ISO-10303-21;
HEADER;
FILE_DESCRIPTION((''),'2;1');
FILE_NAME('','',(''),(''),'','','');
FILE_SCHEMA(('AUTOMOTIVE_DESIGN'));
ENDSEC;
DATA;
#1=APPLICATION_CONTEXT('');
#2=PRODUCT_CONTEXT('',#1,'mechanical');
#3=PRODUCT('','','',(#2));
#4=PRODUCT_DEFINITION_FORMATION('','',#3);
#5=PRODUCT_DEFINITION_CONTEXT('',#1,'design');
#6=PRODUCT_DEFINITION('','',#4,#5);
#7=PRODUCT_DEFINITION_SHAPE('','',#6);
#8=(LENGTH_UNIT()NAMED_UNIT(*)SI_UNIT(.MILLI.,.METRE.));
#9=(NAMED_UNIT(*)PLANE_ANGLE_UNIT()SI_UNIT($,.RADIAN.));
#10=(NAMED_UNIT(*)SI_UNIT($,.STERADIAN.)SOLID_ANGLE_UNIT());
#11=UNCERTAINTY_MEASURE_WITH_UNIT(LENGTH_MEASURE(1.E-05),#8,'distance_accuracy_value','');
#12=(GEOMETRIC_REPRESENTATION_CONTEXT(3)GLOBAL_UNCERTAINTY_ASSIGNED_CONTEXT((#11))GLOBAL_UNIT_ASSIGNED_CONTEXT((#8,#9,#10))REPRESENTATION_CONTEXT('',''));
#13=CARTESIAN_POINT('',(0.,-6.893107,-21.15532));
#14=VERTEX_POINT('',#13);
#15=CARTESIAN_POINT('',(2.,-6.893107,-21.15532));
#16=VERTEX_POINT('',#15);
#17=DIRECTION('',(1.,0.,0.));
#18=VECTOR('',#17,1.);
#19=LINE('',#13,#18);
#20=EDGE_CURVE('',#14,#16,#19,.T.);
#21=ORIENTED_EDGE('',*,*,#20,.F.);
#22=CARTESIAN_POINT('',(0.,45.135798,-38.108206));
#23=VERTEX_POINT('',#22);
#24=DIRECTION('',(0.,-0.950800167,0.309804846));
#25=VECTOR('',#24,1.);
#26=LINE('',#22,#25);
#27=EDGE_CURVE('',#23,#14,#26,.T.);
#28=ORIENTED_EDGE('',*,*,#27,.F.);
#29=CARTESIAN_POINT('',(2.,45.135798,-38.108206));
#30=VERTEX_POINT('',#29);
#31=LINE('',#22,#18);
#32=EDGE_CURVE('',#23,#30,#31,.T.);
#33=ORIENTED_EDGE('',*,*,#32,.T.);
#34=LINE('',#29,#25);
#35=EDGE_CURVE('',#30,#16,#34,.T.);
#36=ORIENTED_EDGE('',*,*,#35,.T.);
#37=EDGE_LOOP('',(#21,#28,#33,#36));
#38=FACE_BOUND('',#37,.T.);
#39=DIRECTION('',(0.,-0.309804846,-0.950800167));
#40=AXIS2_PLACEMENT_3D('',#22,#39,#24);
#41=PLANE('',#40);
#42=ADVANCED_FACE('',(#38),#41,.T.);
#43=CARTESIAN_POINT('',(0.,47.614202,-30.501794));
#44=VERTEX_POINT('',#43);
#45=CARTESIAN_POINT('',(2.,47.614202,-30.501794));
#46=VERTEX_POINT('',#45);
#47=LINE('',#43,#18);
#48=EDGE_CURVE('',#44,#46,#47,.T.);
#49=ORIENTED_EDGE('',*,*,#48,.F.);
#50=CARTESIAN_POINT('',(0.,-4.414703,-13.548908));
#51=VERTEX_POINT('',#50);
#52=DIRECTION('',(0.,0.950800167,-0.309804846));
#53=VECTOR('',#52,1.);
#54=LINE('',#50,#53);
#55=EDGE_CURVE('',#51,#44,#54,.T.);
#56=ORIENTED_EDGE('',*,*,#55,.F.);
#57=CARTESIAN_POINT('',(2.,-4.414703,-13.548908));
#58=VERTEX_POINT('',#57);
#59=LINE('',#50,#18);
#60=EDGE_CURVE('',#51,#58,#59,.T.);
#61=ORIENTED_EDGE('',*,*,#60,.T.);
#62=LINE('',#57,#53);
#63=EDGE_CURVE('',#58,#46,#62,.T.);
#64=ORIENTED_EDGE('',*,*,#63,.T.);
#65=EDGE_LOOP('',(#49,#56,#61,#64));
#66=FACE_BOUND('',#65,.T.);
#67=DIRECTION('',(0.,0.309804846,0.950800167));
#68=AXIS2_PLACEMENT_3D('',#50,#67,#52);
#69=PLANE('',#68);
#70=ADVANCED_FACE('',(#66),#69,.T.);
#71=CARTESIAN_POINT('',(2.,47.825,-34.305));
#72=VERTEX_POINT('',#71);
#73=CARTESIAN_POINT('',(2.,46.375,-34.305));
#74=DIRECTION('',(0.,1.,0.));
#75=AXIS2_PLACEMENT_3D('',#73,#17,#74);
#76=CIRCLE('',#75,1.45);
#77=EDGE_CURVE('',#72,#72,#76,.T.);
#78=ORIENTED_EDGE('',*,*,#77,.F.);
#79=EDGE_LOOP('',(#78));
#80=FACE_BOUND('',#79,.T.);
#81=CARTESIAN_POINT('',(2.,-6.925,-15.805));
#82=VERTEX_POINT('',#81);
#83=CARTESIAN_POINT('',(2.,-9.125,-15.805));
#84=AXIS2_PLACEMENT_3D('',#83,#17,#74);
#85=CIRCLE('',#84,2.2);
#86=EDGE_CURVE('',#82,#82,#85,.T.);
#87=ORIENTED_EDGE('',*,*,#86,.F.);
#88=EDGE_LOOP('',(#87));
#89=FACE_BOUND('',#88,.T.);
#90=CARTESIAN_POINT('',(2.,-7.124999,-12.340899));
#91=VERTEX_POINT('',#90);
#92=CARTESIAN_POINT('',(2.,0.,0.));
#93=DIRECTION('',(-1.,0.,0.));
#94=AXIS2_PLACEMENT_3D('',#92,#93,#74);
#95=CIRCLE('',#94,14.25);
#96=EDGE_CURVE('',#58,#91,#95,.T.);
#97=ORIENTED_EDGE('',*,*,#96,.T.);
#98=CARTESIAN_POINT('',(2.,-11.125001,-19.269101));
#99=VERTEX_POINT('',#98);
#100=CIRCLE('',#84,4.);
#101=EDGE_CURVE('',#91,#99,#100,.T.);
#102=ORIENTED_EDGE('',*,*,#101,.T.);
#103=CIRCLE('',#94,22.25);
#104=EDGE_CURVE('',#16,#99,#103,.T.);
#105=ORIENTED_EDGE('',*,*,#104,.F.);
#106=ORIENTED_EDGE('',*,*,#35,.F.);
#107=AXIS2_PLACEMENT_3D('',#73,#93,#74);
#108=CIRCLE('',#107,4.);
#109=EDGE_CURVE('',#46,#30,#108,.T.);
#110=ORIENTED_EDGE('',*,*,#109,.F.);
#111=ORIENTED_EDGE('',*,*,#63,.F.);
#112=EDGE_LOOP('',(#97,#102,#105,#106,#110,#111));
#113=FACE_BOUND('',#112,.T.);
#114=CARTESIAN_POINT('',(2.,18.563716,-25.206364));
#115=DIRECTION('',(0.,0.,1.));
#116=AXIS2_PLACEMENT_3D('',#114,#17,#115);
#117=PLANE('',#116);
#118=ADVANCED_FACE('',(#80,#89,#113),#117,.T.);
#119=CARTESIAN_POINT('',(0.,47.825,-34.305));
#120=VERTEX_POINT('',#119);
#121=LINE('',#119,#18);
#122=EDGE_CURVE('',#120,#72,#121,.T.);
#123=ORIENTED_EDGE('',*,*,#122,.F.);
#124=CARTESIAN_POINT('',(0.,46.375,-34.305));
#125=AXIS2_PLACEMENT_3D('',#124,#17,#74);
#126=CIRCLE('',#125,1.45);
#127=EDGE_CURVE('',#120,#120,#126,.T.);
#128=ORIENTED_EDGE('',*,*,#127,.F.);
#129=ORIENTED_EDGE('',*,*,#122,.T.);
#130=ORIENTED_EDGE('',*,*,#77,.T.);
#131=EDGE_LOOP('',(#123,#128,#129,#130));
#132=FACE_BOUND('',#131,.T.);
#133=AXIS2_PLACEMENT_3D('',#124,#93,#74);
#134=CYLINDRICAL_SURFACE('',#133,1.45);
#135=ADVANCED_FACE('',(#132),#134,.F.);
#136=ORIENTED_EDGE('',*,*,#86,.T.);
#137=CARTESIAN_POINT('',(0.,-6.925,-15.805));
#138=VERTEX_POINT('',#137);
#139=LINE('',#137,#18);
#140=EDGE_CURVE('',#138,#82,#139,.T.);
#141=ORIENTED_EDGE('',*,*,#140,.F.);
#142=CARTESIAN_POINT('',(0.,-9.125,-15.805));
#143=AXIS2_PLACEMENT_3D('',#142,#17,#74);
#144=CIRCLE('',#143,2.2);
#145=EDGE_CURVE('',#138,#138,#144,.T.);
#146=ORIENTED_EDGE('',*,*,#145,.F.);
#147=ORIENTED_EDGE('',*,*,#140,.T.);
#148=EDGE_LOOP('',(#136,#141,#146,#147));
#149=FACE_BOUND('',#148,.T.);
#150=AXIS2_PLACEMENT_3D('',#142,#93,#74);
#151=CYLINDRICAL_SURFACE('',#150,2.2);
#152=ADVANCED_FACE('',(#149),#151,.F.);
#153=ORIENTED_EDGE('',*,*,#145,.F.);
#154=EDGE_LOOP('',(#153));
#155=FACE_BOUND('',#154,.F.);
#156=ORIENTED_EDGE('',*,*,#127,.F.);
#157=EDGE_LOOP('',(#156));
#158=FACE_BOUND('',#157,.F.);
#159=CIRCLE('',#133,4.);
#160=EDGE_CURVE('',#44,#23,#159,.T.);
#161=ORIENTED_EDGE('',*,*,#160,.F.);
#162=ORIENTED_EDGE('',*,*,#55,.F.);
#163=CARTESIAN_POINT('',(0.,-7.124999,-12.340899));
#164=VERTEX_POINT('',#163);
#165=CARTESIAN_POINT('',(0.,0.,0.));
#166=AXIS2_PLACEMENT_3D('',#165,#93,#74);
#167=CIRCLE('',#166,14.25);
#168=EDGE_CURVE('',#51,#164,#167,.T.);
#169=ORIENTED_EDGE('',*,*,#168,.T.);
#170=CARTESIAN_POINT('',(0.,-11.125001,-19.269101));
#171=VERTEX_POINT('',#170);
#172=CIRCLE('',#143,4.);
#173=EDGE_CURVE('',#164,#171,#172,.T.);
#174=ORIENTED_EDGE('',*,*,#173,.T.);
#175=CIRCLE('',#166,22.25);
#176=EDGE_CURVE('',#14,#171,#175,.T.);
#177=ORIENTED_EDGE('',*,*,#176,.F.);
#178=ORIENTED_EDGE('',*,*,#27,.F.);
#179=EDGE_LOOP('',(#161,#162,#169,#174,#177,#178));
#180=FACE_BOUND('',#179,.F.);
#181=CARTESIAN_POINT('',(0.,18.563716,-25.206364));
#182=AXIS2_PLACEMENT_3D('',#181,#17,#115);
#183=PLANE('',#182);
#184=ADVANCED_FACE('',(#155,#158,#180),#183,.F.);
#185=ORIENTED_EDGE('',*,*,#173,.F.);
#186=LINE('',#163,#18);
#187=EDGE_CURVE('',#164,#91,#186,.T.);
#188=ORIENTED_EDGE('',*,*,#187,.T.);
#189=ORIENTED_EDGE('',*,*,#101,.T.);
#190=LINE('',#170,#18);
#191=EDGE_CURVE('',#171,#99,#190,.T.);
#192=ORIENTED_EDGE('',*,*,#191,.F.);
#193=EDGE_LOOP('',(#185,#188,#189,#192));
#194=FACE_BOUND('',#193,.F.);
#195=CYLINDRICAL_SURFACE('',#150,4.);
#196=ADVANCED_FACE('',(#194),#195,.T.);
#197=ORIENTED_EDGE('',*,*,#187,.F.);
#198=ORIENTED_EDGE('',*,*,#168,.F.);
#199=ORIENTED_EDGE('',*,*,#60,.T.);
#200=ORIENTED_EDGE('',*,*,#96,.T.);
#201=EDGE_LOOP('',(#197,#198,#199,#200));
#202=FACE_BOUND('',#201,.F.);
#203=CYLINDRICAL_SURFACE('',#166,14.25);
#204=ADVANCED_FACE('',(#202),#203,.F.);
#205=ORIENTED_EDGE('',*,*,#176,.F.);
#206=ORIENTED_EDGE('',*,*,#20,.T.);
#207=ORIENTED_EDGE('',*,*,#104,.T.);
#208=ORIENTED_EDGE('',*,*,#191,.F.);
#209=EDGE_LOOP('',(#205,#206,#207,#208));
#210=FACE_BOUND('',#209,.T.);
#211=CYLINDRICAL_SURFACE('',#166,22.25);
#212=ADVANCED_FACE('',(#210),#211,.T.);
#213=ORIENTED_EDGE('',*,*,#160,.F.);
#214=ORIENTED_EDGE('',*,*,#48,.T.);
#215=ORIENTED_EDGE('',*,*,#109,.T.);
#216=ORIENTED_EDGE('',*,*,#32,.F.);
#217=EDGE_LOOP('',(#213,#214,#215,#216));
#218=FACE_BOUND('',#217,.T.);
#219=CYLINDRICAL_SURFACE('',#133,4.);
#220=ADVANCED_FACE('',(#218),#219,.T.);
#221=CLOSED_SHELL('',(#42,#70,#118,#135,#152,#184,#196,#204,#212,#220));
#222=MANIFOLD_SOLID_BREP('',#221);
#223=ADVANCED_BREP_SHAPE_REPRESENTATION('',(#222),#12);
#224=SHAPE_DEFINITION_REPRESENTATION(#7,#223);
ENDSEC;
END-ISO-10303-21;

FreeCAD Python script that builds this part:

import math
import FreeCAD as App
import Part
import Sketcher

doc = App.newDocument("Part")
body = doc.addObject("PartDesign::Body", "Body")

# Sketch on YZ plane
sketch1 = body.newObject("Sketcher::SketchObject", "Sketch")
sketch1.AttachmentSupport = (doc.getObject("YZ_Plane"), [""])
sketch1.MapMode = "FlatFace"
sketch1.addGeometry([
    Part.ArcOfCircle(Part.Circle(App.Vector(0, 0, 0), App.Vector(0, 0, 1), 14.3), math.radians(-120), math.radians(-108.05)),  # 0
    Part.ArcOfCircle(Part.Circle(App.Vector(-9.1, -15.8, 0), App.Vector(0, 0, 1), 4), math.radians(60), math.radians(240)),  # 1
    Part.ArcOfCircle(Part.Circle(App.Vector(0, 0, 0), App.Vector(0, 0, 1), 22.3), math.radians(-120), math.radians(-108.05)),  # 2
    Part.LineSegment(App.Vector(-6.9, -21.2, 0), App.Vector(45.1, -38.1, 0)),  # 3
    Part.ArcOfCircle(Part.Circle(App.Vector(46.4, -34.3, 0), App.Vector(0, 0, 1), 4), math.radians(-108), math.radians(72)),  # 4
    Part.LineSegment(App.Vector(47.6, -30.5, 0), App.Vector(-4.4, -13.5, 0)),  # 5
    Part.Circle(App.Vector(46.4, -34.3, 0), App.Vector(0, 0, 1), 1.4),  # 6
    Part.Circle(App.Vector(-9.1, -15.8, 0), App.Vector(0, 0, 1), 2.2),  # 7
], False)
sketch1.addConstraint([
    Sketcher.Constraint("Tangent", 0, 1, 1, 1),
    Sketcher.Constraint("Tangent", 1, 2, 2, 1),
    Sketcher.Constraint("Tangent", 2, 2, 3, 1),
    Sketcher.Constraint("Tangent", 3, 2, 4, 1),
    Sketcher.Constraint("Tangent", 4, 2, 5, 1),
    Sketcher.Constraint("Tangent", 5, 2, 0, 2),
    Sketcher.Constraint("Coincident", 6, 3, 4, 3),
    Sketcher.Constraint("Coincident", 7, 3, 1, 3),
    Sketcher.Constraint("Equal", 1, 4),
    Sketcher.Constraint("Parallel", 3, 5),
    Sketcher.Constraint("Equal", 3, 5),
    Sketcher.Constraint("Radius", 1, 4.0),
    Sketcher.Constraint("Diameter", 6, 2.9),
    Sketcher.Constraint("Diameter", 7, 4.4),
    Sketcher.Constraint("DistanceX", 1, 3, 0, 1, 2.0),
    Sketcher.Constraint("Radius", 0, 14.2538),
    Sketcher.Constraint("DistanceX", 1, 3, 4, 3, 55.5),
    Sketcher.Constraint("DistanceY", 4, 3, 1, 3, 18.5),
    Sketcher.Constraint("DistanceX", 1, 3, -1, 1, 9.125),
    Sketcher.Constraint("DistanceY", 1, 3, -1, 1, 15.805),
])
pad1 = body.newObject("PartDesign::Pad", "Pad")
pad1.Profile = sketch1
pad1.Length = 2

doc.recompute()
